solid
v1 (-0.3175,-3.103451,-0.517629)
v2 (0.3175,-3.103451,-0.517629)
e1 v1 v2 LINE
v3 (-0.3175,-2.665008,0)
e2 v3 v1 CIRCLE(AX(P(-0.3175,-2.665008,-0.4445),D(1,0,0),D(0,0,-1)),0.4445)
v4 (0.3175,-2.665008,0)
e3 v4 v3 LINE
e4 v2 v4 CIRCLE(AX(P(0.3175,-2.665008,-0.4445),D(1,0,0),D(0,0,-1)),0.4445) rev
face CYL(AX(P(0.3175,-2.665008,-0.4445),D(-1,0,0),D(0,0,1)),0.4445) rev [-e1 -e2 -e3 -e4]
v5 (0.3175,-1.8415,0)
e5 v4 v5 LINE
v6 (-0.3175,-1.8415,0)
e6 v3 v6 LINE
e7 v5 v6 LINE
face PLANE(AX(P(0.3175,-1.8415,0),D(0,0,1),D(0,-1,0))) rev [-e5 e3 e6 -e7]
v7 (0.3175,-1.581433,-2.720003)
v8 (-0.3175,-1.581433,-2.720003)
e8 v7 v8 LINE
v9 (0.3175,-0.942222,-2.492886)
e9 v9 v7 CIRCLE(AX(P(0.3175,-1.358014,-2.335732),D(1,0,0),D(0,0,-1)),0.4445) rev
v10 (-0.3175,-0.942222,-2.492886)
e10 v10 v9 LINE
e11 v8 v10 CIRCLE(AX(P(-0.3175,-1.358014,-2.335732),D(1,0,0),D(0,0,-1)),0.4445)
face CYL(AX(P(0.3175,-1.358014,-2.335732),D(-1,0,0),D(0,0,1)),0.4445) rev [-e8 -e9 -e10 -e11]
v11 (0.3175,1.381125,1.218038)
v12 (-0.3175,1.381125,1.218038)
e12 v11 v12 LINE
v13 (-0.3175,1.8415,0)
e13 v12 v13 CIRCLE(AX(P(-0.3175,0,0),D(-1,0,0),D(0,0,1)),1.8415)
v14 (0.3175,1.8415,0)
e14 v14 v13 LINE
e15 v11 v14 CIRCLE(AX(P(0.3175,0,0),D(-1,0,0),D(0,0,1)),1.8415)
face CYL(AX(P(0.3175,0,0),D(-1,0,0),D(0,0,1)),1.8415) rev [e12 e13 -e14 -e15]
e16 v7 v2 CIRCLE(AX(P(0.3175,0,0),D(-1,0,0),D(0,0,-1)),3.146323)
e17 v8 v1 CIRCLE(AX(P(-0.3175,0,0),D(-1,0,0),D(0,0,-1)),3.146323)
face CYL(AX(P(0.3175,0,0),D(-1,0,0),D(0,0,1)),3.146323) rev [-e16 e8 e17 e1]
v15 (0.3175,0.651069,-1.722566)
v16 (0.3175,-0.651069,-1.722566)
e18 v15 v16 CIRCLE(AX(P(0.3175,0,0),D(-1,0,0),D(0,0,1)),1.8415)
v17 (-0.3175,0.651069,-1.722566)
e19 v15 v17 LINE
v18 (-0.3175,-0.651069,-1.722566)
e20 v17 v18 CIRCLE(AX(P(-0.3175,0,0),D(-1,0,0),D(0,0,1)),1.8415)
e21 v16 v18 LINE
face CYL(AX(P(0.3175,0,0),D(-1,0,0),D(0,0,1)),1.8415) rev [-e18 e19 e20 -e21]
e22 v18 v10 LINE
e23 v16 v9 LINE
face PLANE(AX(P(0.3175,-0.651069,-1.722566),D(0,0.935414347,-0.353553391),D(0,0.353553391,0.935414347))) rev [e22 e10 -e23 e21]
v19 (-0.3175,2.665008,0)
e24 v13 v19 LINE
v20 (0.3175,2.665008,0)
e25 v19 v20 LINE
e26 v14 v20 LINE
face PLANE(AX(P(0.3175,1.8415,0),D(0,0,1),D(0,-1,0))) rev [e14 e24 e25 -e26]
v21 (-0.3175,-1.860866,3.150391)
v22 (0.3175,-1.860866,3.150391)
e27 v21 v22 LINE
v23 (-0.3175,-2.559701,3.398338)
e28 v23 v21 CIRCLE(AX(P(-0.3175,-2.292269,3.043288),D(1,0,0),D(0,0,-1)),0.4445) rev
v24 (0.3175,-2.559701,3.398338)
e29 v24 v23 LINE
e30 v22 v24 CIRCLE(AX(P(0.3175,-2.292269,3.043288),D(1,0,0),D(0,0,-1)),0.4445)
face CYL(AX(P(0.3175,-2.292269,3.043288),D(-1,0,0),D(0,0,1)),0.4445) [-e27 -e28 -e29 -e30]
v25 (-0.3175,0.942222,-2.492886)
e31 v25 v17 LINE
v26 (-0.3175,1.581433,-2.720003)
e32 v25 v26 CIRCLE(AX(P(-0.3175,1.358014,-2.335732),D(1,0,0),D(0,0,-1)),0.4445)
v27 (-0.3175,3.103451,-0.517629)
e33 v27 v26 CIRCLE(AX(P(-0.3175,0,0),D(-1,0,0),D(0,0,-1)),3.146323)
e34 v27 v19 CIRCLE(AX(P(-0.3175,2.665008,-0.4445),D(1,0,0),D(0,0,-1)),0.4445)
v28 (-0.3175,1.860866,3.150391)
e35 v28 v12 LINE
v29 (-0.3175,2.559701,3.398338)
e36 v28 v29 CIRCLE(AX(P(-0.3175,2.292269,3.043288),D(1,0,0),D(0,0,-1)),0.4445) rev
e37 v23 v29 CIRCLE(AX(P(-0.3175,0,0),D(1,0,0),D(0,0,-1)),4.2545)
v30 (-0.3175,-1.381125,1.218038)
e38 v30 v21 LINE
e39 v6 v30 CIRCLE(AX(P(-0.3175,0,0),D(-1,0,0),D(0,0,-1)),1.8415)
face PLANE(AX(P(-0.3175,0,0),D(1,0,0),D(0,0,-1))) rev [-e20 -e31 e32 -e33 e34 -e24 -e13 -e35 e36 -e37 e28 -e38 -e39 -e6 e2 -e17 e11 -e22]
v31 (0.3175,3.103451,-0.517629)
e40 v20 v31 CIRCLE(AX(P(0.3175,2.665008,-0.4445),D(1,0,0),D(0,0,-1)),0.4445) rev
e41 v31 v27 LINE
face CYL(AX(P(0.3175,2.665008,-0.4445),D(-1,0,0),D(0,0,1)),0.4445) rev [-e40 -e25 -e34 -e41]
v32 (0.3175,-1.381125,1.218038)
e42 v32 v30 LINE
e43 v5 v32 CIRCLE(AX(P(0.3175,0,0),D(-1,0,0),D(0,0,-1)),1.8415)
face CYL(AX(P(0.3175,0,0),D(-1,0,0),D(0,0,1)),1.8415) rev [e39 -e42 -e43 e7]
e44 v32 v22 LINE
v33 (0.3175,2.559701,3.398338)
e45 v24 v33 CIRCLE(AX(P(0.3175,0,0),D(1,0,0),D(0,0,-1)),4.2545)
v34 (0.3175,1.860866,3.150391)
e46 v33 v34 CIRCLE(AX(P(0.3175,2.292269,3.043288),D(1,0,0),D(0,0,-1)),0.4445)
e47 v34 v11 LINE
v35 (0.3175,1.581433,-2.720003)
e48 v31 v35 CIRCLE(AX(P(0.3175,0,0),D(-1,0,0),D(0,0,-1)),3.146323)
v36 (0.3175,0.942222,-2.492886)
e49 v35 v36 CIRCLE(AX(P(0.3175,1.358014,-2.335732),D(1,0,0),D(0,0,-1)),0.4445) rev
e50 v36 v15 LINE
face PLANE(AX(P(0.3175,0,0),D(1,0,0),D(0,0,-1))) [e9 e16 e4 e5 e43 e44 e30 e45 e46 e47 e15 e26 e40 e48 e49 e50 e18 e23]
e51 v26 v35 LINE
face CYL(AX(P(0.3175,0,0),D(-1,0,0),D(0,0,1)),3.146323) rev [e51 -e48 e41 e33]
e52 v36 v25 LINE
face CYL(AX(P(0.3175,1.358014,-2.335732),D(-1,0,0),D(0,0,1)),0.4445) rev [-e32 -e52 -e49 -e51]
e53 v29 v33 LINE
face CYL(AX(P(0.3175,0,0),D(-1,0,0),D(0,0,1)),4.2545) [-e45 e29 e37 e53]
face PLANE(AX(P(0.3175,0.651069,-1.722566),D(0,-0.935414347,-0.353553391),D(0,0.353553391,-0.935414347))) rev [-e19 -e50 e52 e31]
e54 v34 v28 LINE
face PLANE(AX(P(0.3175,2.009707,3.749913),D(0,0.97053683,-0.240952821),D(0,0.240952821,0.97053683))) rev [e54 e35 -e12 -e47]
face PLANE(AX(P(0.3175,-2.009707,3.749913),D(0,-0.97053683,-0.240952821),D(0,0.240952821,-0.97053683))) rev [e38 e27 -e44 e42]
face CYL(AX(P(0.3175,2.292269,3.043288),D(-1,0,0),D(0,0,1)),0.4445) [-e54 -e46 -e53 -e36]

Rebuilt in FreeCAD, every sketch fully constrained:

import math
import FreeCAD as App
import Part
import Sketcher

V = App.Vector
Q = App.Units.Quantity


def edges_at(feature, points):
    """Names of the edges that pass closest to the given points."""
    edges = feature.Shape.Edges
    near = lambda p: min(range(len(edges)), key=lambda i: edges[i].distToShape(Part.Vertex(*p))[0])
    return sorted({f"Edge{near(p) + 1}" for p in points})

doc = App.newDocument("Part")
body = doc.addObject("PartDesign::Body", "Body")

# Sketch on YZ plane
sketch1 = body.newObject("Sketcher::SketchObject", "Sketch")
sketch1.AttachmentSupport = (doc.getObject("YZ_Plane"), [""])
sketch1.MapMode = "FlatFace"
sketch1.addGeometry(Part.LineSegment(V(-1.4, 1.2, 0), V(-2, 3.7, 0)), False)
sketch1.addGeometry(Part.ArcOfCircle(Part.Circle(V(0, 0, 0), V(0, 0, 1), 4.3), math.radians(118), math.radians(422)), False)
sketch1.addGeometry(Part.LineSegment(V(2, 3.7, 0), V(1.4, 1.2, 0)), False)
sketch1.addGeometry(Part.ArcOfCircle(Part.Circle(V(0, 0, 0), V(0, 0, 1), 1.8), math.radians(0), math.radians(41)), False)
sketch1.addGeometry(Part.LineSegment(V(1.8, 0, 0), V(3.1, 0, 0)), False)
sketch1.addGeometry(Part.ArcOfCircle(Part.Circle(V(0, 0, 0), V(0, 0, 1), 3.1), math.radians(-69), math.radians(0)), False)
sketch1.addGeometry(Part.LineSegment(V(1.1, -2.9, 0), V(0.7, -1.7, 0)), False)
sketch1.addGeometry(Part.ArcOfCircle(Part.Circle(V(0, 0, 0), V(0, 0, 1), 1.8), math.radians(-111), math.radians(-69)), False)
sketch1.addGeometry(Part.LineSegment(V(-0.7, -1.7, 0), V(-1.1, -2.9, 0)), False)
sketch1.addGeometry(Part.ArcOfCircle(Part.Circle(V(0, 0, 0), V(0, 0, 1), 3.1), math.radians(-180), math.radians(-111)), False)
sketch1.addGeometry(Part.LineSegment(V(-3.1, 0, 0), V(-1.8, 0, 0)), False)
sketch1.addGeometry(Part.ArcOfCircle(Part.Circle(V(0, 0, 0), V(0, 0, 1), 1.8), math.radians(139), math.radians(180)), False)
sketch1.addConstraint(Sketcher.Constraint("Coincident", 0, 2, 1, 1))
sketch1.addConstraint(Sketcher.Constraint("Coincident", 1, 2, 2, 1))
sketch1.addConstraint(Sketcher.Constraint("Coincident", 2, 2, 3, 2))
sketch1.addConstraint(Sketcher.Constraint("Coincident", 3, 1, 4, 1))
sketch1.addConstraint(Sketcher.Constraint("Coincident", 4, 2, 5, 2))
sketch1.addConstraint(Sketcher.Constraint("Coincident", 5, 1, 6, 1))
sketch1.addConstraint(Sketcher.Constraint("Coincident", 6, 2, 7, 2))
sketch1.addConstraint(Sketcher.Constraint("Coincident", 7, 1, 8, 1))
sketch1.addConstraint(Sketcher.Constraint("Coincident", 8, 2, 9, 2))
sketch1.addConstraint(Sketcher.Constraint("Coincident", 9, 1, 10, 1))
sketch1.addConstraint(Sketcher.Constraint("Coincident", 10, 2, 11, 2))
sketch1.addConstraint(Sketcher.Constraint("Coincident", 11, 1, 0, 1))
sketch1.addConstraint(Sketcher.Constraint("Horizontal", 4))
sketch1.addConstraint(Sketcher.Constraint("Horizontal", 10))
sketch1.addConstraint(Sketcher.Constraint("Coincident", 1, 3, -1, 1))
sketch1.addConstraint(Sketcher.Constraint("Coincident", 3, 3, -1, 1))
sketch1.addConstraint(Sketcher.Constraint("Coincident", 5, 3, -1, 1))
sketch1.addConstraint(Sketcher.Constraint("Coincident", 7, 3, -1, 1))
sketch1.addConstraint(Sketcher.Constraint("Coincident", 9, 3, -1, 1))
sketch1.addConstraint(Sketcher.Constraint("Coincident", 11, 3, -1, 1))
sketch1.addConstraint(Sketcher.Constraint("Equal", 3, 7))
sketch1.addConstraint(Sketcher.Constraint("Equal", 5, 9))
sketch1.addConstraint(Sketcher.Constraint("Equal", 7, 11))
sketch1.addConstraint(Sketcher.Constraint("PointOnObject", 3, 1, -1))
sketch1.addConstraint(Sketcher.Constraint("PointOnObject", 9, 1, -1))
sketch1.addConstraint(Sketcher.Constraint("Horizontal", 0, 2, 1, 2))
sketch1.addConstraint(Sketcher.Constraint("Horizontal", 6, 2, 7, 1))
sketch1.addConstraint(Sketcher.Constraint("Horizontal", 5, 1, 8, 2))
sketch1.addConstraint(Sketcher.Constraint("Horizontal", 2, 2, 11, 1))
sketch1.addConstraint(Sketcher.Constraint("Radius", 1, Q("0.1675 in")))
sketch1.addConstraint(Sketcher.Constraint("Radius", 3, Q("0.0725 in")))
sketch1.addConstraint(Sketcher.Constraint("Radius", 5, Q("3.146323 mm")))
sketch1.addConstraint(Sketcher.Constraint("DistanceX", -1, 1, 6, 2, Q("0.651069 mm")))
sketch1.addConstraint(Sketcher.Constraint("DistanceY", 5, 1, 6, 2, Q("1.22055 mm")))
sketch1.addConstraint(Sketcher.Constraint("Distance", 0, Q("2.608737 mm")))
sketch1.addConstraint(Sketcher.Constraint("DistanceX", 0, 2, -1, 1, Q("2.009707 mm")))
pad1 = body.newObject("PartDesign::Pad", "Pad")
pad1.Profile = sketch1
pad1.Length = Q("0.025 in")
pad1.Midplane = True
doc.recompute()

fillet = body.newObject("PartDesign::Fillet", "Fillet")
fillet.Base = (pad1, edges_at(pad1, [
    (0, -2.01, 3.75),
    (0, -3.146, 0),
    (0, -1.112, -2.943),
    (0, 1.112, -2.943),
    (0, 3.146, 0),
    (0, 2.01, 3.75),
]))
fillet.Radius = Q("0.0175 in")

doc.recompute()
